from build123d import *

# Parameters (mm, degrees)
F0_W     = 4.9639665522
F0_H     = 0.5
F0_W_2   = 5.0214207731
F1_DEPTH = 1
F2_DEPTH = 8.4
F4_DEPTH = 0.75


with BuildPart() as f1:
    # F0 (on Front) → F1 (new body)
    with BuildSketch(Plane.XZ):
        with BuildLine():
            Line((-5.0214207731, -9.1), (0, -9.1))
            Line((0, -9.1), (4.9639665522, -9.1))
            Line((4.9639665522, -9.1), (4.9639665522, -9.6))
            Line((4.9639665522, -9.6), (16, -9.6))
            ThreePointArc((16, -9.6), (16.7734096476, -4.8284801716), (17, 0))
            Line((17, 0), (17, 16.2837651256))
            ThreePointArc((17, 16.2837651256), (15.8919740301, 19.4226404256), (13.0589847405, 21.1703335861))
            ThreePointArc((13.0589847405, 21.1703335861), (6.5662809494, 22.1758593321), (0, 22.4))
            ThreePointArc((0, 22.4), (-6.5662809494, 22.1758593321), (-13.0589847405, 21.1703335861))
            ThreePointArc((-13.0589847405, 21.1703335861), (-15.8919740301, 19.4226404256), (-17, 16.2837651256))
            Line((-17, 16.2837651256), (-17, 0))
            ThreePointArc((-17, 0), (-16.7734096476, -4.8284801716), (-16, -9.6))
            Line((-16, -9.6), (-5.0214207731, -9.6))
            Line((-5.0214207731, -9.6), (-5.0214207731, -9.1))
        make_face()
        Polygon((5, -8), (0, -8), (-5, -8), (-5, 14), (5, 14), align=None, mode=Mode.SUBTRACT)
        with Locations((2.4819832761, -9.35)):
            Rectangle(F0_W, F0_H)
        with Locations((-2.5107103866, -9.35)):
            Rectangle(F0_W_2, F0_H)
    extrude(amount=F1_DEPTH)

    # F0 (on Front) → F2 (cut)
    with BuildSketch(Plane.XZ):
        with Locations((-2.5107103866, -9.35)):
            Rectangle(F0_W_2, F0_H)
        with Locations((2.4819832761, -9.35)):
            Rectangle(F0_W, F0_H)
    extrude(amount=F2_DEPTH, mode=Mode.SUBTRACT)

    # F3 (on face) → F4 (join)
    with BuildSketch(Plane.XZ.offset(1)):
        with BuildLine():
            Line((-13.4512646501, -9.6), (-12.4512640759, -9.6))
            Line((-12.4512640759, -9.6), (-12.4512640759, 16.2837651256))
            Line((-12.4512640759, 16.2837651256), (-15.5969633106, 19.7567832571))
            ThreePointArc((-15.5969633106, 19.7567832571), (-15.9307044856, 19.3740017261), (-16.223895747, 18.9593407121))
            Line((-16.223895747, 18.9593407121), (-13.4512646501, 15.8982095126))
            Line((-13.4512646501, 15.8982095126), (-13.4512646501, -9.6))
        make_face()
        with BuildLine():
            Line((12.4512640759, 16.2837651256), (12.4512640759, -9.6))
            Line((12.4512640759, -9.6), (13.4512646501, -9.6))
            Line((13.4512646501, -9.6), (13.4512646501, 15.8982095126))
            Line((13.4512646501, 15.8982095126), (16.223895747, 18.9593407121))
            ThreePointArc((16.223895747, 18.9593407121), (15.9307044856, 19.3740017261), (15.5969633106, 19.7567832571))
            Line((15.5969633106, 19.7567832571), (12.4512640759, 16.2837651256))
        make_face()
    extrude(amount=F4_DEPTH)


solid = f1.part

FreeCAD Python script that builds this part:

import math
import FreeCAD as App
import Part
import Sketcher
Q = App.Units.Quantity

doc = App.newDocument("Part")
params = doc.addObject("Spreadsheet::Sheet", "Params")
for row, (alias, value) in enumerate([
    ("sketch1_radius", "5 mm"),
    ("sketch1_radius2", "55 mm"),
    ("sketch1_radius3", "42.5 mm"),
    ("sketch1_width", "32 mm"),
    ("sketch1_width2", "10 mm"),
    ("pad1_length", "1 mm"),
    ("sketch2_height", "0.5 mm"),
    ("pocket1_length", "8.4 mm"),
    ("sketch3_radius", "5 mm"),
    ("sketch3_width", "1.000001 mm"),
    ("pad2_length", "0.75 mm"),
], start=1):
    params.set(f"A{row}", alias)
    params.set(f"B{row}", "=" + value)
    params.setAlias(f"B{row}", alias)

body = doc.addObject("PartDesign::Body", "Body")

# Sketch on XZ plane
sketch1 = body.newObject("Sketcher::SketchObject", "Sketch")
sketch1.AttachmentSupport = (doc.getObject("XZ_Plane"), [""])
sketch1.MapMode = "FlatFace"
sketch1.addGeometry([
    Part.ArcOfCircle(Part.Circle(App.Vector(-25, 0, 0), App.Vector(0, 0, 1), 42), math.radians(-12.47), math.radians(0.57)),  # 0
    Part.LineSegment(App.Vector(17, 0, 0), App.Vector(17, 16, 0)),  # 1
    Part.ArcOfCircle(Part.Circle(App.Vector(12, 16, 0), App.Vector(0, 0, 1), 5), math.radians(0), math.radians(78)),  # 2
    Part.ArcOfCircle(Part.Circle(App.Vector(1, -33, 0), App.Vector(0, 0, 1), 55), math.radians(77.77), math.radians(91.47)),  # 3
    Part.ArcOfCircle(Part.Circle(App.Vector(-1, -33, 0), App.Vector(0, 0, 1), 55), math.radians(88.53), math.radians(102.23)),  # 4
    Part.ArcOfCircle(Part.Circle(App.Vector(-12, 16, 0), App.Vector(0, 0, 1), 5), math.radians(102), math.radians(180)),  # 5
    Part.LineSegment(App.Vector(-17, 16, 0), App.Vector(-17, 0, 0)),  # 6
    Part.ArcOfCircle(Part.Circle(App.Vector(25, 0, 0), App.Vector(0, 0, 1), 42), math.radians(179.43), math.radians(192.47)),  # 7
    Part.LineSegment(App.Vector(-16, -10, 0), App.Vector(16, -10, 0)),  # 8
    Part.LineSegment(App.Vector(5, 14, 0), App.Vector(5, -8, 0)),  # 9
    Part.LineSegment(App.Vector(5, -8, 0), App.Vector(-5, -8, 0)),  # 10
    Part.LineSegment(App.Vector(-5, -8, 0), App.Vector(-5, 14, 0)),  # 11
    Part.LineSegment(App.Vector(-5, 14, 0), App.Vector(5, 14, 0)),  # 12
], False)
sketch1.addConstraint([
    Sketcher.Constraint("Coincident", 0, 2, 1, 1),
    Sketcher.Constraint("Tangent", 1, 2, 2, 1),
    Sketcher.Constraint("Tangent", 2, 2, 3, 1),
    Sketcher.Constraint("Coincident", 3, 2, 4, 1),
    Sketcher.Constraint("Tangent", 4, 2, 5, 1),
    Sketcher.Constraint("Tangent", 5, 2, 6, 1),
    Sketcher.Constraint("Coincident", 6, 2, 7, 1),
    Sketcher.Constraint("Coincident", 7, 2, 8, 1),
    Sketcher.Constraint("Coincident", 8, 2, 0, 1),
    Sketcher.Constraint("Coincident", 9, 2, 10, 1),
    Sketcher.Constraint("Coincident", 10, 2, 11, 1),
    Sketcher.Constraint("Coincident", 11, 2, 12, 1),
    Sketcher.Constraint("Coincident", 12, 2, 9, 1),
    Sketcher.Constraint("Vertical", 1),
    Sketcher.Constraint("Vertical", 6),
    Sketcher.Constraint("Horizontal", 8),
    Sketcher.Constraint("Vertical", 9),
    Sketcher.Constraint("Horizontal", 10),
    Sketcher.Constraint("Vertical", 11),
    Sketcher.Constraint("Horizontal", 12),
    Sketcher.Constraint("Equal", 3, 4),
    Sketcher.Constraint("Equal", 2, 5),
    Sketcher.Constraint("Equal", 0, 7),
    Sketcher.Constraint("Symmetric", 0, 2, 6, 2, -1, 1),
    Sketcher.Constraint("Symmetric", 3, 3, 4, 3, -2),
    Sketcher.Constraint("Symmetric", 0, 3, 7, 3, -2),
    Sketcher.Constraint("Radius", 2, Q("5 mm")),
    Sketcher.Constraint("Radius", 3, Q("55 mm")),
    Sketcher.Constraint("Radius", 0, Q("42.5 mm")),
    Sketcher.Constraint("DistanceX", 8, 1, 8, 2, Q("32 mm")),
    Sketcher.Constraint("DistanceX", 10, 2, 10, 1, Q("10 mm")),
    Sketcher.Constraint("DistanceY", 9, 2, 9, 1, Q("22 mm")),
    Sketcher.Constraint("DistanceX", -1, 1, 2, 3, Q("12 mm")),
    Sketcher.Constraint("DistanceX", -1, 1, 9, 2, Q("5 mm")),
    Sketcher.Constraint("DistanceY", 9, 2, -1, 1, Q("8 mm")),
    Sketcher.Constraint("DistanceY", -1, 1, 3, 2, Q("22.4 mm")),
    Sketcher.Constraint("DistanceY", 7, 2, -1, 1, Q("9.6 mm")),
    Sketcher.Constraint("DistanceY", 1, 1, 1, 2, Q("16.283765 mm")),
])
sketch1.setExpression("Constraints[26]", "Params.sketch1_radius")
sketch1.setExpression("Constraints[27]", "Params.sketch1_radius2")
sketch1.setExpression("Constraints[28]", "Params.sketch1_radius3")
sketch1.setExpression("Constraints[29]", "Params.sketch1_width")
sketch1.setExpression("Constraints[30]", "Params.sketch1_width2")
pad1 = body.newObject("PartDesign::Pad", "Pad")
pad1.Profile = sketch1
pad1.setExpression("Length", "Params.pad1_length")

# Sketch on XZ plane
sketch2 = body.newObject("Sketcher::SketchObject", "Sketch001")
sketch2.AttachmentSupport = (doc.getObject("XZ_Plane"), [""])
sketch2.MapMode = "FlatFace"
sketch2.addGeometry([
    Part.LineSegment(App.Vector(-5, -9.1, 0), App.Vector(-5, -9.6, 0)),
    Part.LineSegment(App.Vector(-5, -9.6, 0), App.Vector(5, -9.6, 0)),
    Part.LineSegment(App.Vector(5, -9.6, 0), App.Vector(5, -9.1, 0)),
    Part.LineSegment(App.Vector(5, -9.1, 0), App.Vector(-5, -9.1, 0)),
], False)
sketch2.addConstraint([
    Sketcher.Constraint("Coincident", 0, 2, 1, 1),
    Sketcher.Constraint("Coincident", 1, 2, 2, 1),
    Sketcher.Constraint("Coincident", 2, 2, 3, 1),
    Sketcher.Constraint("Coincident", 3, 2, 0, 1),
    Sketcher.Constraint("Vertical", 0),
    Sketcher.Constraint("Horizontal", 1),
    Sketcher.Constraint("Vertical", 2),
    Sketcher.Constraint("Horizontal", 3),
    Sketcher.Constraint("DistanceY", 0, 2, 0, 1, Q("0.5 mm")),
    Sketcher.Constraint("DistanceY", 0, 2, -1, 1, Q("9.6 mm")),
    Sketcher.Constraint("DistanceX", 1, 1, 1, 2, Q("9.985387 mm")),
    Sketcher.Constraint("DistanceX", 0, 2, -1, 1, Q("5.021421 mm")),
])
sketch2.setExpression("Constraints[8]", "Params.sketch2_height")
pocket1 = body.newObject("PartDesign::Pocket", "Pocket")
pocket1.Profile = sketch2
pocket1.setExpression("Length", "Params.pocket1_length")
pocket1.Reversed = True

# Sketch on XZ plane
sketch3 = body.newObject("Sketcher::SketchObject", "Sketch002")
sketch3.AttachmentSupport = (doc.getObject("XZ_Plane"), [""])
sketch3.MapMode = "FlatFace"
sketch3.AttachmentOffset = App.Placement(App.Vector(0, 0, 1), App.Rotation())
sketch3.addGeometry([
    Part.LineSegment(App.Vector(-13.5, -9.6, 0), App.Vector(-12.5, -9.6, 0)),  # 0
    Part.LineSegment(App.Vector(-12.5, -9.6, 0), App.Vector(-12.5, 16.3, 0)),  # 1
    Part.LineSegment(App.Vector(-12.5, 16.3, 0), App.Vector(-15.6, 19.8, 0)),  # 2
    Part.ArcOfCircle(Part.Circle(App.Vector(-12, 16.3, 0), App.Vector(0, 0, 1), 5), math.radians(136), math.radians(147.65)),  # 3
    Part.LineSegment(App.Vector(-16.2, 19, 0), App.Vector(-13.5, 15.9, 0)),  # 4
    Part.LineSegment(App.Vector(-13.5, 15.9, 0), App.Vector(-13.5, -9.6, 0)),  # 5
    Part.LineSegment(App.Vector(12.5, 16.3, 0), App.Vector(12.5, -9.6, 0)),  # 6
    Part.LineSegment(App.Vector(12.5, -9.6, 0), App.Vector(13.5, -9.6, 0)),  # 7
    Part.LineSegment(App.Vector(13.5, -9.6, 0), App.Vector(13.5, 15.9, 0)),  # 8
    Part.LineSegment(App.Vector(13.5, 15.9, 0), App.Vector(16.2, 19, 0)),  # 9
    Part.ArcOfCircle(Part.Circle(App.Vector(12, 16.3, 0), App.Vector(0, 0, 1), 5), math.radians(32.35), math.radians(44)),  # 10
    Part.LineSegment(App.Vector(15.6, 19.8, 0), App.Vector(12.5, 16.3, 0)),  # 11
], False)
sketch3.addConstraint([
    Sketcher.Constraint("Coincident", 0, 2, 1, 1),
    Sketcher.Constraint("Coincident", 1, 2, 2, 1),
    Sketcher.Constraint("Coincident", 2, 2, 3, 1),
    Sketcher.Constraint("Coincident", 3, 2, 4, 1),
    Sketcher.Constraint("Coincident", 4, 2, 5, 1),
    Sketcher.Constraint("Coincident", 5, 2, 0, 1),
    Sketcher.Constraint("Coincident", 6, 2, 7, 1),
    Sketcher.Constraint("Coincident", 7, 2, 8, 1),
    Sketcher.Constraint("Coincident", 8, 2, 9, 1),
    Sketcher.Constraint("Coincident", 9, 2, 10, 1),
    Sketcher.Constraint("Coincident", 10, 2, 11, 1),
    Sketcher.Constraint("Coincident", 11, 2, 6, 1),
    Sketcher.Constraint("Horizontal", 0),
    Sketcher.Constraint("Vertical", 1),
    Sketcher.Constraint("Vertical", 5),
    Sketcher.Constraint("Vertical", 6),
    Sketcher.Constraint("Horizontal", 7),
    Sketcher.Constraint("Vertical", 8),
    Sketcher.Constraint("Equal", 3, 10),
    Sketcher.Constraint("Symmetric", 3, 3, 10, 3, -2),
    Sketcher.Constraint("Symmetric", 0, 2, 6, 2, -2),
    Sketcher.Constraint("Symmetric", 4, 2, 8, 2, -2),
    Sketcher.Constraint("Parallel", 2, 4),
    Sketcher.Constraint("Parallel", 9, 11),
    Sketcher.Constraint("Horizontal", 10, 3, 1, 2),
    Sketcher.Constraint("Horizontal", 3, 2, 9, 2),
    Sketcher.Constraint("Horizontal", 2, 2, 10, 2),
    Sketcher.Constraint("Radius", 3, Q("5 mm")),
    Sketcher.Constraint("DistanceX", 0, 1, 0, 2, Q("1.000001 mm")),
    Sketcher.Constraint("DistanceX", 3, 3, -1, 1, Q("12 mm")),
    Sketcher.Constraint("DistanceY", 0, 2, -1, 1, Q("9.6 mm")),
    Sketcher.Constraint("DistanceY", 5, 2, 5, 1, Q("25.49821 mm")),
    Sketcher.Constraint("DistanceX", 2, 2, 1, 2, Q("3.145699 mm")),
    Sketcher.Constraint("Distance", 2, Q("4.685859 mm")),
    Sketcher.Constraint("DistanceY", 1, 1, 1, 2, Q("25.883765 mm")),
])
sketch3.setExpression("Constraints[27]", "Params.sketch3_radius")
sketch3.setExpression("Constraints[28]", "Params.sketch3_width")
pad2 = body.newObject("PartDesign::Pad", "Pad001")
pad2.Profile = sketch3
pad2.setExpression("Length", "Params.pad2_length")

doc.recompute()
